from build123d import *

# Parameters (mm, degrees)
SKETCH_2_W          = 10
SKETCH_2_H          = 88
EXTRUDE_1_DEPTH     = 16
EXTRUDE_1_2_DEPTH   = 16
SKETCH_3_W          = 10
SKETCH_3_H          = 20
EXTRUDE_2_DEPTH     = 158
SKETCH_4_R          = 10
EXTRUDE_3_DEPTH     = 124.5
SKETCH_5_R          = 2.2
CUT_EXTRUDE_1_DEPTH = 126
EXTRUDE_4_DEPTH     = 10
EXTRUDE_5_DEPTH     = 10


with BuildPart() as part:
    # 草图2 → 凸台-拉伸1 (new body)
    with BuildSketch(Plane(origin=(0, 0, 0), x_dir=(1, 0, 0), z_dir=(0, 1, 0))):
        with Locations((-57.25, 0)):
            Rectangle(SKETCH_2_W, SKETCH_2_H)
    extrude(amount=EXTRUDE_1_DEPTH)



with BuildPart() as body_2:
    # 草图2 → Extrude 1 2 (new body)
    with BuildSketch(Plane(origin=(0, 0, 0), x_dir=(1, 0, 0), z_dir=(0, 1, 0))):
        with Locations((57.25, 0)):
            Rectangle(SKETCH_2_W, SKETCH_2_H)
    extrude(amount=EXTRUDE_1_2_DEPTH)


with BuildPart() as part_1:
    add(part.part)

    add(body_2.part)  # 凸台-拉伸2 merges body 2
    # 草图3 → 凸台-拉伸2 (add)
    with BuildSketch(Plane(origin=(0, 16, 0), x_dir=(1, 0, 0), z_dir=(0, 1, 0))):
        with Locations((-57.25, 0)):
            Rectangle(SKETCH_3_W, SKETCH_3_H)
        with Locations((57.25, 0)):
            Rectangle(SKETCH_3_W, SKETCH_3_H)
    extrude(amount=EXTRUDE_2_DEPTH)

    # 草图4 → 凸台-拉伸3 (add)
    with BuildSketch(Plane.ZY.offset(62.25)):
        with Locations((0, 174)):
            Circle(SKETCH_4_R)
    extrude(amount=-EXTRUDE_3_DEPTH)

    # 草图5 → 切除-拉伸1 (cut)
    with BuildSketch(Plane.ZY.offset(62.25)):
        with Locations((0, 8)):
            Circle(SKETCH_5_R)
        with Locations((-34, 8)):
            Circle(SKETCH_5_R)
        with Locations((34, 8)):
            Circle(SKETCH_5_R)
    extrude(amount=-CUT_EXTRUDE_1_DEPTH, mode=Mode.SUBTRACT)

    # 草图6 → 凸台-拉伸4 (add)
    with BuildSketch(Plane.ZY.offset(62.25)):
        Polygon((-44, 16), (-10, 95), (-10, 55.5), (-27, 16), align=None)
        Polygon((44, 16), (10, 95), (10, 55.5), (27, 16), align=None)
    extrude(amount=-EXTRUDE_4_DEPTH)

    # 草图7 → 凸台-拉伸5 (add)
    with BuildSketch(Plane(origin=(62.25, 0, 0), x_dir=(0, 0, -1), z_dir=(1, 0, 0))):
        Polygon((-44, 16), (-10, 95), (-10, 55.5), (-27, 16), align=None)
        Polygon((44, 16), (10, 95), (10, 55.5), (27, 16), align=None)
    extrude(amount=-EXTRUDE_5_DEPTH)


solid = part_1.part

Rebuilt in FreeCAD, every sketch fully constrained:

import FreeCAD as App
import Part
import Sketcher
from FreeCAD import Vector
Q = App.Units.Quantity


def add_polygon(sketch, points):
    """Adds a closed chain of lines whose ends are joined by coincident constraints."""
    first, n = sketch.GeometryCount, len(points)
    for a, b in zip(points, points[1:] + points[:1]):
        sketch.addGeometry(Part.LineSegment(App.Vector(*a, 0), App.Vector(*b, 0)), False)
    for i in range(n):
        sketch.addConstraint(Sketcher.Constraint("Coincident", first + i, 2, first + (i + 1) % n, 1))

doc = App.newDocument("Part")
body = doc.addObject("PartDesign::Body", "Body")

sketch1 = body.newObject("Sketcher::SketchObject", "Sketch")
sketch1.AttachmentSupport = (doc.getObject("XZ_Plane"), [""])
sketch1.MapMode = "FlatFace"
add_polygon(sketch1, [(-62, -44), (-62, 44), (-52, 44), (-52, -44)])
sketch1.addConstraint([
    Sketcher.Constraint("Vertical", 0),
    Sketcher.Constraint("Horizontal", 1),
    Sketcher.Constraint("Vertical", 2),
    Sketcher.Constraint("Horizontal", 3),
    Sketcher.Constraint("DistanceX", 1, 1, 1, 2, Q("10 mm")),
    Sketcher.Constraint("DistanceY", 0, 1, 0, 2, Q("88 mm")),
    Sketcher.Constraint("DistanceY", -1, 1, 0, 2, Q("44 mm")),
    Sketcher.Constraint("DistanceX", 0, 2, -1, 1, Q("62.25 mm")),
])
pad1 = body.newObject("PartDesign::Pad", "Pad")
pad1.Profile = sketch1
pad1.Length = 16
pad1.Reversed = True
body2 = doc.addObject("PartDesign::Body", "Body001")

sketch2 = body2.newObject("Sketcher::SketchObject", "Sketch001")
sketch2.AttachmentSupport = (doc.getObject("XZ_Plane001"), [""])
sketch2.MapMode = "FlatFace"
add_polygon(sketch2, [(52, -44), (52, 44), (62, 44), (62, -44)])
sketch2.addConstraint([
    Sketcher.Constraint("Vertical", 0),
    Sketcher.Constraint("Horizontal", 1),
    Sketcher.Constraint("Vertical", 2),
    Sketcher.Constraint("Horizontal", 3),
    Sketcher.Constraint("DistanceX", 1, 1, 1, 2, Q("10 mm")),
    Sketcher.Constraint("DistanceY", 0, 1, 0, 2, Q("88 mm")),
    Sketcher.Constraint("DistanceY", -1, 1, 0, 2, Q("44 mm")),
    Sketcher.Constraint("DistanceX", -1, 1, 0, 2, Q("52.25 mm")),
])
pad2 = body2.newObject("PartDesign::Pad", "Pad001")
pad2.Profile = sketch2
pad2.Length = 16
pad2.Reversed = True
body.AllowCompound = True
doc.recompute()

boolean = body.newObject("PartDesign::Boolean", "Boolean")
boolean.Type = "Fuse"
boolean.addObjects([body2])

sketch3 = body.newObject("Sketcher::SketchObject", "Sketch002")
sketch3.AttachmentSupport = (doc.getObject("XZ_Plane"), [""])
sketch3.MapMode = "FlatFace"
sketch3.AttachmentOffset = App.Placement(Vector(0, 0, -16), App.Rotation())
add_polygon(sketch3, [(-62, -10), (-62, 10), (-52, 10), (-52, -10)])
add_polygon(sketch3, [(52, -10), (52, 10), (62, 10), (62, -10)])
sketch3.addConstraint([
    Sketcher.Constraint("Vertical", 0),
    Sketcher.Constraint("Horizontal", 1),
    Sketcher.Constraint("Vertical", 2),
    Sketcher.Constraint("Horizontal", 3),
    Sketcher.Constraint("Vertical", 4),
    Sketcher.Constraint("Horizontal", 5),
    Sketcher.Constraint("Vertical", 6),
    Sketcher.Constraint("Horizontal", 7),
    Sketcher.Constraint("Symmetric", 2, 2, 4, 2, -1, 1),
    Sketcher.Constraint("Symmetric", 0, 2, 6, 2, -1, 1),
    Sketcher.Constraint("Horizontal", 1, 2, 4, 2),
    Sketcher.Constraint("DistanceX", 1, 1, 1, 2, Q("10 mm")),
    Sketcher.Constraint("DistanceY", 0, 1, 0, 2, Q("20 mm")),
    Sketcher.Constraint("DistanceX", 1, 2, 4, 2, Q("104.5 mm")),
])
pad3 = body.newObject("PartDesign::Pad", "Pad002")
pad3.Profile = sketch3
pad3.Length = 158
pad3.Reversed = True

sketch4 = body.newObject("Sketcher::SketchObject", "Sketch003")
sketch4.AttachmentSupport = (doc.getObject("YZ_Plane"), [""])
sketch4.MapMode = "FlatFace"
sketch4.AttachmentOffset = App.Placement(Vector(0, 0, -62.25), App.Rotation())
sketch4.addGeometry(Part.Circle(Vector(174, 0, 0), Vector(0, 0, 1), 10), False)
sketch4.addConstraint([
    Sketcher.Constraint("PointOnObject", 0, 3, -1),
    Sketcher.Constraint("Diameter", 0, Q("20 mm")),
    Sketcher.Constraint("DistanceX", -1, 1, 0, 3, Q("174 mm")),
])
pad4 = body.newObject("PartDesign::Pad", "Pad003")
pad4.Profile = sketch4
pad4.Length = 124.5

sketch5 = body.newObject("Sketcher::SketchObject", "Sketch004")
sketch5.AttachmentSupport = (doc.getObject("YZ_Plane"), [""])
sketch5.MapMode = "FlatFace"
sketch5.AttachmentOffset = App.Placement(Vector(0, 0, -62.25), App.Rotation())
sketch5.addGeometry([
    Part.Circle(Vector(8, 0, 0), Vector(0, 0, 1), 2.2),
    Part.Circle(Vector(8, -34, 0), Vector(0, 0, 1), 2.2),
    Part.Circle(Vector(8, 34, 0), Vector(0, 0, 1), 2.2),
], False)
sketch5.addConstraint([
    Sketcher.Constraint("Equal", 0, 1),
    Sketcher.Constraint("Equal", 1, 2),
    Sketcher.Constraint("Symmetric", 1, 3, 2, 3, -1),
    Sketcher.Constraint("PointOnObject", 0, 3, -1),
    Sketcher.Constraint("Vertical", 0, 3, 1, 3),
    Sketcher.Constraint("Diameter", 0, Q("4.4 mm")),
    Sketcher.Constraint("DistanceX", -1, 1, 0, 3, Q("8 mm")),
    Sketcher.Constraint("DistanceY", 1, 3, -1, 1, Q("34 mm")),
])
pocket1 = body.newObject("PartDesign::Pocket", "Pocket")
pocket1.Profile = sketch5
pocket1.Length = 126
pocket1.Reversed = True

sketch6 = body.newObject("Sketcher::SketchObject", "Sketch005")
sketch6.AttachmentSupport = (doc.getObject("YZ_Plane"), [""])
sketch6.MapMode = "FlatFace"
sketch6.AttachmentOffset = App.Placement(Vector(0, 0, -62.25), App.Rotation())
add_polygon(sketch6, [(95, -10), (16, -44), (16, -27), (56, -10)])
add_polygon(sketch6, [(16, 44), (95, 10), (56, 10), (16, 27)])
sketch6.addConstraint([
    Sketcher.Constraint("Vertical", 1),
    Sketcher.Constraint("Horizontal", 3),
    Sketcher.Constraint("Horizontal", 5),
    Sketcher.Constraint("Vertical", 7),
    Sketcher.Constraint("Symmetric", 3, 2, 4, 2, -1),
    Sketcher.Constraint("Symmetric", 1, 2, 6, 2, -1),
    Sketcher.Constraint("Parallel", 0, 2),
    Sketcher.Constraint("Parallel", 4, 6),
    Sketcher.Constraint("Vertical", 2, 2, 5, 2),
    Sketcher.Constraint("DistanceY", 1, 1, 1, 2, Q("17 mm")),
    Sketcher.Constraint("DistanceX", 3, 1, 3, 2, Q("39.5 mm")),
    Sketcher.Constraint("DistanceX", -1, 1, 0, 2, Q("16 mm")),
    Sketcher.Constraint("DistanceY", 0, 2, -1, 1, Q("44 mm")),
    Sketcher.Constraint("DistanceY", 2, 2, -1, 1, Q("10 mm")),
])
pad5 = body.newObject("PartDesign::Pad", "Pad004")
pad5.Profile = sketch6
pad5.Length = 10

sketch7 = body.newObject("Sketcher::SketchObject", "Sketch006")
sketch7.AttachmentSupport = (doc.getObject("YZ_Plane"), [""])
sketch7.MapMode = "FlatFace"
sketch7.AttachmentOffset = App.Placement(Vector(0, 0, 62.25), App.Rotation())
add_polygon(sketch7, [(95, 10), (16, 44), (16, 27), (56, 10)])
add_polygon(sketch7, [(16, -44), (95, -10), (56, -10), (16, -27)])
sketch7.addConstraint([
    Sketcher.Constraint("Vertical", 1),
    Sketcher.Constraint("Horizontal", 3),
    Sketcher.Constraint("Horizontal", 5),
    Sketcher.Constraint("Vertical", 7),
    Sketcher.Constraint("Symmetric", 3, 2, 4, 2, -1),
    Sketcher.Constraint("Symmetric", 1, 2, 6, 2, -1),
    Sketcher.Constraint("Parallel", 0, 2),
    Sketcher.Constraint("Parallel", 4, 6),
    Sketcher.Constraint("Vertical", 2, 2, 5, 2),
    Sketcher.Constraint("DistanceY", 1, 2, 1, 1, Q("17 mm")),
    Sketcher.Constraint("DistanceX", 3, 1, 3, 2, Q("39.5 mm")),
    Sketcher.Constraint("DistanceX", -1, 1, 0, 2, Q("16 mm")),
    Sketcher.Constraint("DistanceY", -1, 1, 0, 2, Q("44 mm")),
    Sketcher.Constraint("DistanceY", -1, 1, 2, 2, Q("10 mm")),
])
pad6 = body.newObject("PartDesign::Pad", "Pad005")
pad6.Profile = sketch7
pad6.Length = 10
pad6.Reversed = True

doc.recompute()
